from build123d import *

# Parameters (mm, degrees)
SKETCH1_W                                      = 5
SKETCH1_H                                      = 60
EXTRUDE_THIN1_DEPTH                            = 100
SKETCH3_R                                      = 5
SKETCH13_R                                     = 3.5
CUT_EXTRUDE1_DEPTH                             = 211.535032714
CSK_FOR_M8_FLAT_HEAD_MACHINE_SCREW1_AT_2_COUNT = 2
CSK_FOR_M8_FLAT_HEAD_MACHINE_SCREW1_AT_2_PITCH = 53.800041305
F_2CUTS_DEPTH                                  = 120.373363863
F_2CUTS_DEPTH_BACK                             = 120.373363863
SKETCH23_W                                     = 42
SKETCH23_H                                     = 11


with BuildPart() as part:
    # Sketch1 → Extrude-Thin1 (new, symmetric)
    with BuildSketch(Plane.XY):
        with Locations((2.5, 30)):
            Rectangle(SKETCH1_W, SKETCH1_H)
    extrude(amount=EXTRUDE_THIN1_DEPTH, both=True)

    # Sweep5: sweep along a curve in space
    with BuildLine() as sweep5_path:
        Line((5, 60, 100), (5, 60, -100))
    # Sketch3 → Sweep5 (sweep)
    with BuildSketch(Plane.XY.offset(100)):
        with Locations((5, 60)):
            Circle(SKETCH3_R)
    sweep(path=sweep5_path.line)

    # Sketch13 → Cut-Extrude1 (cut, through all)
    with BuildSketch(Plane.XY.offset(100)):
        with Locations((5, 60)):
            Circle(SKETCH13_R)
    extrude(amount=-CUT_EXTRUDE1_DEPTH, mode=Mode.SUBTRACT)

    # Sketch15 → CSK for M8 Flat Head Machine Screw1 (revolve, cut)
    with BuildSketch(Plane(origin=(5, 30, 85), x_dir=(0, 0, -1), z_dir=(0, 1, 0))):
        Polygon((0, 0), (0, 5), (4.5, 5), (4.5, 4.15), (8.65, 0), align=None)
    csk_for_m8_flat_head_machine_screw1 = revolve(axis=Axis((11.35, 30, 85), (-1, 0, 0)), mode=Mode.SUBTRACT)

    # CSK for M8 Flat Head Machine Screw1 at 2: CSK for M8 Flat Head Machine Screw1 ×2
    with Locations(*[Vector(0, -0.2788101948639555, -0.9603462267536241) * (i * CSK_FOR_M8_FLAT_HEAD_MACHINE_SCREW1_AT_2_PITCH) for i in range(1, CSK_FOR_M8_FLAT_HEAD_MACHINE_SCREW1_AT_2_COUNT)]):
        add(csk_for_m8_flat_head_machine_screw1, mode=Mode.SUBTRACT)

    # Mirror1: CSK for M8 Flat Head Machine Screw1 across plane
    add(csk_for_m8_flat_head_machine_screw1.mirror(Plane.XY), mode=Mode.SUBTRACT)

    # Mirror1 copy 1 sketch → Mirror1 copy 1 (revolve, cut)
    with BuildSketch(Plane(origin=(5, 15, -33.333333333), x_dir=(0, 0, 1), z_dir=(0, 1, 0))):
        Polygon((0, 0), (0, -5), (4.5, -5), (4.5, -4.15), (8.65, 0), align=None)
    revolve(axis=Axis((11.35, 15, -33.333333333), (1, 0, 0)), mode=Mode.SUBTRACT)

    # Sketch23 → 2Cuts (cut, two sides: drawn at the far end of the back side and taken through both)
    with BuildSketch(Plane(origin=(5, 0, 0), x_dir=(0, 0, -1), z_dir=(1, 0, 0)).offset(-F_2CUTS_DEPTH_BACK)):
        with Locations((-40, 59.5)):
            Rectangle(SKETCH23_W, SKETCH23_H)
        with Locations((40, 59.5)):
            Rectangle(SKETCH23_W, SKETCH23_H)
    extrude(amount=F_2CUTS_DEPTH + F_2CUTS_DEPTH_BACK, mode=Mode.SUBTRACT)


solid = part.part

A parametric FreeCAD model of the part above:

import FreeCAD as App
import Part
import Sketcher

V = App.Vector
Q = App.Units.Quantity


def add_polygon(sketch, points):
    """Adds a closed chain of lines whose ends are joined by coincident constraints."""
    first, n = sketch.GeometryCount, len(points)
    for a, b in zip(points, points[1:] + points[:1]):
        sketch.addGeometry(Part.LineSegment(App.Vector(*a, 0), App.Vector(*b, 0)), False)
    for i in range(n):
        sketch.addConstraint(Sketcher.Constraint("Coincident", first + i, 2, first + (i + 1) % n, 1))

doc = App.newDocument("Part")
body = doc.addObject("PartDesign::Body", "Body")

sketch1 = doc.addObject("Sketcher::SketchObject", "Sketch")
body.addObject(sketch1)
sketch1.AttachmentSupport = (doc.XY_Plane, [""])
sketch1.MapMode = "FlatFace"
add_polygon(sketch1, [(0, 60), (0, 0), (5, 0), (5, 60)])
sketch1.addConstraint([
    Sketcher.Constraint("Vertical", 0),
    Sketcher.Constraint("Horizontal", 1),
    Sketcher.Constraint("Vertical", 2),
    Sketcher.Constraint("Horizontal", 3),
    Sketcher.Constraint("Coincident", 0, 2, -1, 1),
    Sketcher.Constraint("DistanceX", 1, 1, 1, 2, 5.0),
    Sketcher.Constraint("DistanceY", 0, 2, 0, 1, 60.0),
])
pad1 = doc.addObject("PartDesign::Pad", "Pad")
body.addObject(pad1)
pad1.Profile = sketch1
pad1.Length = 200
pad1.Midplane = True

sketch2 = doc.addObject("Sketcher::SketchObject", "Sketch001")
body.addObject(sketch2)
sketch2.AttachmentSupport = (doc.XY_Plane, [""])
sketch2.MapMode = "FlatFace"
sketch2.AttachmentOffset = App.Placement(V(0, 0, 100), App.Rotation())
sketch2.addGeometry(Part.Circle(V(5, 60, 0), V(0, 0, 1), 5), False)
sketch2.addConstraint([
    Sketcher.Constraint("Diameter", 0, 10.0),
    Sketcher.Constraint("DistanceX", -1, 1, 0, 3, 5.0),
    Sketcher.Constraint("DistanceY", -1, 1, 0, 3, 60.0),
])

sketch3 = doc.addObject("Sketcher::SketchObject", "Sketch002")
body.addObject(sketch3)
sketch3.AttachmentSupport = (doc.XZ_Plane, [""])
sketch3.MapMode = "FlatFace"
sketch3.AttachmentOffset = App.Placement(V(0, 0, -60), App.Rotation())
sketch3.addGeometry(Part.LineSegment(V(5, 100, 0), V(5, -100, 0)), False)
sketch3.addConstraint([
    Sketcher.Constraint("Vertical", 0),
    Sketcher.Constraint("DistanceY", 0, 2, 0, 1, 200.0),
    Sketcher.Constraint("DistanceX", -1, 1, 0, 1, 5.0),
    Sketcher.Constraint("DistanceY", -1, 1, 0, 1, 100.0),
])
doc.recompute()

additivepipe = doc.addObject("PartDesign::AdditivePipe", "AdditivePipe")
body.addObject(additivepipe)
additivepipe.Profile = sketch2
additivepipe.Spine = (sketch3, ["Edge1"])

sketch4 = doc.addObject("Sketcher::SketchObject", "Sketch003")
body.addObject(sketch4)
sketch4.AttachmentSupport = (doc.XY_Plane, [""])
sketch4.MapMode = "FlatFace"
sketch4.AttachmentOffset = App.Placement(V(0, 0, 100), App.Rotation())
sketch4.addGeometry(Part.Circle(V(5, 60, 0), V(0, 0, 1), 3.5), False)
sketch4.addConstraint([
    Sketcher.Constraint("Diameter", 0, 7.0),
    Sketcher.Constraint("DistanceX", -1, 1, 0, 3, 5.0),
    Sketcher.Constraint("DistanceY", -1, 1, 0, 3, 60.0),
])
pocket1 = doc.addObject("PartDesign::Pocket", "Pocket")
body.addObject(pocket1)
pocket1.Profile = sketch4
pocket1.Type = "ThroughAll"

sketch5 = doc.addObject("Sketcher::SketchObject", "Sketch004")
body.addObject(sketch5)
sketch5.AttachmentSupport = (doc.XZ_Plane, [""])
sketch5.MapMode = "FlatFace"
sketch5.AttachmentOffset = App.Placement(V(0, 0, -30), App.Rotation())
add_polygon(sketch5, [(0, 85), (5, 85), (5, 76.3), (0.8, 80.5), (0, 80.5)])
sketch5.addGeometry(Part.LineSegment(V(5, 85, 0), V(0, 85, 0)), True)
sketch5.addConstraint([
    Sketcher.Constraint("Horizontal", 0),
    Sketcher.Constraint("Vertical", 1),
    Sketcher.Constraint("Horizontal", 3),
    Sketcher.Constraint("Vertical", 4),
    Sketcher.Constraint("Horizontal", 5),
    Sketcher.Constraint("Coincident", 5, 1, 0, 2),
    Sketcher.Constraint("PointOnObject", 3, 2, -2),
    Sketcher.Constraint("PointOnObject", 5, 2, -2),
    Sketcher.Constraint("DistanceX", 0, 1, 0, 2, 5.0),
    Sketcher.Constraint("Angle", 2, Q("135 deg")),
    Sketcher.Constraint("DistanceY", 4, 1, 4, 2, 4.5),
    Sketcher.Constraint("DistanceY", -1, 1, 0, 2, 85.0),
    Sketcher.Constraint("DistanceX", 3, 2, 3, 1, 0.85),
])
groove = doc.addObject("PartDesign::Groove", "Groove")
body.addObject(groove)
groove.Profile = sketch5
groove.ReferenceAxis = (sketch5, ["Axis0"])
groove.Angle = 360
doc.recompute()

datumline = doc.addObject("PartDesign::Line", "DatumLine")
body.addObject(datumline)
datumline.Placement = App.Placement(V(0, 0, 0), App.Rotation(V(0, 0, 1), V(0, -0.278810195, -0.960346227)))
linearpattern = doc.addObject("PartDesign::LinearPattern", "LinearPattern")
body.addObject(linearpattern)
linearpattern.Originals = [groove]
linearpattern.Direction = (datumline, [""])
linearpattern.Mode = "offset"
linearpattern.Offset = 53.800041
linearpattern.Occurrences = 2
body.Tip = linearpattern
doc.recompute()

mirrored = doc.addObject("PartDesign::Mirrored", "Mirrored")
body.addObject(mirrored)
mirrored.Originals = [groove]
mirrored.MirrorPlane = (doc.XY_Plane, [""])
body.Tip = mirrored

sketch6 = doc.addObject("Sketcher::SketchObject", "Sketch005")
body.addObject(sketch6)
sketch6.AttachmentSupport = (doc.XZ_Plane, [""])
sketch6.MapMode = "FlatFace"
sketch6.AttachmentOffset = App.Placement(V(0, 0, -15), App.Rotation())
add_polygon(sketch6, [(5, -33.3), (0, -33.3), (0, -28.8), (0.8, -28.8), (5, -24.7)])
sketch6.addGeometry(Part.LineSegment(V(0, -33.3, 0), V(5, -33.3, 0)), True)
sketch6.addConstraint([
    Sketcher.Constraint("Horizontal", 0),
    Sketcher.Constraint("Vertical", 1),
    Sketcher.Constraint("Horizontal", 2),
    Sketcher.Constraint("Vertical", 4),
    Sketcher.Constraint("Horizontal", 5),
    Sketcher.Constraint("Coincident", 5, 1, 0, 2),
    Sketcher.Constraint("PointOnObject", 0, 2, -2),
    Sketcher.Constraint("Vertical", 3, 2, 5, 2),
    Sketcher.Constraint("DistanceX", 0, 2, 0, 1, 5.0),
    Sketcher.Constraint("Angle", 3, Q("45 deg")),
    Sketcher.Constraint("DistanceY", 1, 1, 1, 2, 4.5),
    Sketcher.Constraint("DistanceX", 2, 1, 2, 2, 0.85),
    Sketcher.Constraint("DistanceY", 0, 2, -1, 1, 33.333333),
])
groove2 = doc.addObject("PartDesign::Groove", "Groove001")
body.addObject(groove2)
groove2.Profile = sketch6
groove2.ReferenceAxis = (sketch6, ["Axis0"])
groove2.Angle = 360

sketch7 = doc.addObject("Sketcher::SketchObject", "Sketch006")
body.addObject(sketch7)
sketch7.AttachmentSupport = (doc.YZ_Plane, [""])
sketch7.MapMode = "FlatFace"
sketch7.AttachmentOffset = App.Placement(V(0, 0, 5), App.Rotation())
add_polygon(sketch7, [(65, 61), (54, 61), (54, 19), (65, 19)])
add_polygon(sketch7, [(65, -19), (54, -19), (54, -61), (65, -61)])
sketch7.addConstraint([
    Sketcher.Constraint("Horizontal", 0),
    Sketcher.Constraint("Vertical", 1),
    Sketcher.Constraint("Horizontal", 2),
    Sketcher.Constraint("Vertical", 3),
    Sketcher.Constraint("Horizontal", 4),
    Sketcher.Constraint("Vertical", 5),
    Sketcher.Constraint("Horizontal", 6),
    Sketcher.Constraint("Vertical", 7),
    Sketcher.Constraint("Symmetric", 1, 2, 4, 2, -1),
    Sketcher.Constraint("Symmetric", 3, 2, 6, 2, -1),
    Sketcher.Constraint("DistanceX", 0, 2, 0, 1, 11.0),
    Sketcher.Constraint("DistanceY", 1, 2, 1, 1, 42.0),
    Sketcher.Constraint("DistanceX", -1, 1, 0, 2, 54.0),
    Sketcher.Constraint("DistanceY", -1, 1, 0, 2, 61.0),
])
pocket2 = doc.addObject("PartDesign::Pocket", "Pocket001")
body.addObject(pocket2)
pocket2.Profile = sketch7
pocket2.Type = "ThroughAll"
pocket2.Midplane = True

doc.recompute()
